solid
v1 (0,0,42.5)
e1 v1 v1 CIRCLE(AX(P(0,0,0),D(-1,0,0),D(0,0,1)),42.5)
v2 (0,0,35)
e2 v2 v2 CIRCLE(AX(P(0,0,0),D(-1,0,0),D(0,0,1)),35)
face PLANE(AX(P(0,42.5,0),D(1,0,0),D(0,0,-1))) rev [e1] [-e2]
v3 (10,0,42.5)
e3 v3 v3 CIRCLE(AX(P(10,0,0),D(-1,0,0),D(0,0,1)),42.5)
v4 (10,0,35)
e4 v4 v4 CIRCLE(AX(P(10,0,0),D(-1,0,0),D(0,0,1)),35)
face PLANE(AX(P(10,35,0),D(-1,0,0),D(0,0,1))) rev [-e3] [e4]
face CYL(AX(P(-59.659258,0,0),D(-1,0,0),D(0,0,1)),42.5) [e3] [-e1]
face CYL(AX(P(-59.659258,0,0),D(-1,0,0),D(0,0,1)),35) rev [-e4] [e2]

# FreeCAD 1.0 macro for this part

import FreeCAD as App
import Part
import Sketcher

V = App.Vector

doc = App.newDocument("Part")
body = doc.addObject("PartDesign::Body", "Body")

# Sketch on XY plane
sketch1 = body.newObject("Sketcher::SketchObject", "Sketch")
sketch1.AttachmentSupport = (doc.getObject("XY_Plane"), [""])
sketch1.MapMode = "FlatFace"
sketch1.addGeometry([
    Part.LineSegment(V(0, 42, 0), V(0, 35, 0)),
    Part.LineSegment(V(0, 35, 0), V(10, 35, 0)),
    Part.LineSegment(V(10, 35, 0), V(10, 42, 0)),
    Part.LineSegment(V(10, 42, 0), V(0, 42, 0)),
], False)
sketch1.addConstraint([
    Sketcher.Constraint("Coincident", 0, 2, 1, 1),
    Sketcher.Constraint("Coincident", 1, 2, 2, 1),
    Sketcher.Constraint("Coincident", 2, 2, 3, 1),
    Sketcher.Constraint("Coincident", 3, 2, 0, 1),
    Sketcher.Constraint("Vertical", 0),
    Sketcher.Constraint("Horizontal", 1),
    Sketcher.Constraint("Vertical", 2),
    Sketcher.Constraint("Horizontal", 3),
    Sketcher.Constraint("PointOnObject", 0, 2, -2),
    Sketcher.Constraint("DistanceX", 1, 1, 1, 2, 10.0),
    Sketcher.Constraint("DistanceY", 0, 2, 0, 1, 7.5),
    Sketcher.Constraint("DistanceY", -1, 1, 0, 2, 35.0),
])
revolution = body.newObject("PartDesign::Revolution", "Revolution")
revolution.Profile = sketch1
revolution.ReferenceAxis = (sketch1, ["H_Axis"])
revolution.Angle = 360

doc.recompute()
